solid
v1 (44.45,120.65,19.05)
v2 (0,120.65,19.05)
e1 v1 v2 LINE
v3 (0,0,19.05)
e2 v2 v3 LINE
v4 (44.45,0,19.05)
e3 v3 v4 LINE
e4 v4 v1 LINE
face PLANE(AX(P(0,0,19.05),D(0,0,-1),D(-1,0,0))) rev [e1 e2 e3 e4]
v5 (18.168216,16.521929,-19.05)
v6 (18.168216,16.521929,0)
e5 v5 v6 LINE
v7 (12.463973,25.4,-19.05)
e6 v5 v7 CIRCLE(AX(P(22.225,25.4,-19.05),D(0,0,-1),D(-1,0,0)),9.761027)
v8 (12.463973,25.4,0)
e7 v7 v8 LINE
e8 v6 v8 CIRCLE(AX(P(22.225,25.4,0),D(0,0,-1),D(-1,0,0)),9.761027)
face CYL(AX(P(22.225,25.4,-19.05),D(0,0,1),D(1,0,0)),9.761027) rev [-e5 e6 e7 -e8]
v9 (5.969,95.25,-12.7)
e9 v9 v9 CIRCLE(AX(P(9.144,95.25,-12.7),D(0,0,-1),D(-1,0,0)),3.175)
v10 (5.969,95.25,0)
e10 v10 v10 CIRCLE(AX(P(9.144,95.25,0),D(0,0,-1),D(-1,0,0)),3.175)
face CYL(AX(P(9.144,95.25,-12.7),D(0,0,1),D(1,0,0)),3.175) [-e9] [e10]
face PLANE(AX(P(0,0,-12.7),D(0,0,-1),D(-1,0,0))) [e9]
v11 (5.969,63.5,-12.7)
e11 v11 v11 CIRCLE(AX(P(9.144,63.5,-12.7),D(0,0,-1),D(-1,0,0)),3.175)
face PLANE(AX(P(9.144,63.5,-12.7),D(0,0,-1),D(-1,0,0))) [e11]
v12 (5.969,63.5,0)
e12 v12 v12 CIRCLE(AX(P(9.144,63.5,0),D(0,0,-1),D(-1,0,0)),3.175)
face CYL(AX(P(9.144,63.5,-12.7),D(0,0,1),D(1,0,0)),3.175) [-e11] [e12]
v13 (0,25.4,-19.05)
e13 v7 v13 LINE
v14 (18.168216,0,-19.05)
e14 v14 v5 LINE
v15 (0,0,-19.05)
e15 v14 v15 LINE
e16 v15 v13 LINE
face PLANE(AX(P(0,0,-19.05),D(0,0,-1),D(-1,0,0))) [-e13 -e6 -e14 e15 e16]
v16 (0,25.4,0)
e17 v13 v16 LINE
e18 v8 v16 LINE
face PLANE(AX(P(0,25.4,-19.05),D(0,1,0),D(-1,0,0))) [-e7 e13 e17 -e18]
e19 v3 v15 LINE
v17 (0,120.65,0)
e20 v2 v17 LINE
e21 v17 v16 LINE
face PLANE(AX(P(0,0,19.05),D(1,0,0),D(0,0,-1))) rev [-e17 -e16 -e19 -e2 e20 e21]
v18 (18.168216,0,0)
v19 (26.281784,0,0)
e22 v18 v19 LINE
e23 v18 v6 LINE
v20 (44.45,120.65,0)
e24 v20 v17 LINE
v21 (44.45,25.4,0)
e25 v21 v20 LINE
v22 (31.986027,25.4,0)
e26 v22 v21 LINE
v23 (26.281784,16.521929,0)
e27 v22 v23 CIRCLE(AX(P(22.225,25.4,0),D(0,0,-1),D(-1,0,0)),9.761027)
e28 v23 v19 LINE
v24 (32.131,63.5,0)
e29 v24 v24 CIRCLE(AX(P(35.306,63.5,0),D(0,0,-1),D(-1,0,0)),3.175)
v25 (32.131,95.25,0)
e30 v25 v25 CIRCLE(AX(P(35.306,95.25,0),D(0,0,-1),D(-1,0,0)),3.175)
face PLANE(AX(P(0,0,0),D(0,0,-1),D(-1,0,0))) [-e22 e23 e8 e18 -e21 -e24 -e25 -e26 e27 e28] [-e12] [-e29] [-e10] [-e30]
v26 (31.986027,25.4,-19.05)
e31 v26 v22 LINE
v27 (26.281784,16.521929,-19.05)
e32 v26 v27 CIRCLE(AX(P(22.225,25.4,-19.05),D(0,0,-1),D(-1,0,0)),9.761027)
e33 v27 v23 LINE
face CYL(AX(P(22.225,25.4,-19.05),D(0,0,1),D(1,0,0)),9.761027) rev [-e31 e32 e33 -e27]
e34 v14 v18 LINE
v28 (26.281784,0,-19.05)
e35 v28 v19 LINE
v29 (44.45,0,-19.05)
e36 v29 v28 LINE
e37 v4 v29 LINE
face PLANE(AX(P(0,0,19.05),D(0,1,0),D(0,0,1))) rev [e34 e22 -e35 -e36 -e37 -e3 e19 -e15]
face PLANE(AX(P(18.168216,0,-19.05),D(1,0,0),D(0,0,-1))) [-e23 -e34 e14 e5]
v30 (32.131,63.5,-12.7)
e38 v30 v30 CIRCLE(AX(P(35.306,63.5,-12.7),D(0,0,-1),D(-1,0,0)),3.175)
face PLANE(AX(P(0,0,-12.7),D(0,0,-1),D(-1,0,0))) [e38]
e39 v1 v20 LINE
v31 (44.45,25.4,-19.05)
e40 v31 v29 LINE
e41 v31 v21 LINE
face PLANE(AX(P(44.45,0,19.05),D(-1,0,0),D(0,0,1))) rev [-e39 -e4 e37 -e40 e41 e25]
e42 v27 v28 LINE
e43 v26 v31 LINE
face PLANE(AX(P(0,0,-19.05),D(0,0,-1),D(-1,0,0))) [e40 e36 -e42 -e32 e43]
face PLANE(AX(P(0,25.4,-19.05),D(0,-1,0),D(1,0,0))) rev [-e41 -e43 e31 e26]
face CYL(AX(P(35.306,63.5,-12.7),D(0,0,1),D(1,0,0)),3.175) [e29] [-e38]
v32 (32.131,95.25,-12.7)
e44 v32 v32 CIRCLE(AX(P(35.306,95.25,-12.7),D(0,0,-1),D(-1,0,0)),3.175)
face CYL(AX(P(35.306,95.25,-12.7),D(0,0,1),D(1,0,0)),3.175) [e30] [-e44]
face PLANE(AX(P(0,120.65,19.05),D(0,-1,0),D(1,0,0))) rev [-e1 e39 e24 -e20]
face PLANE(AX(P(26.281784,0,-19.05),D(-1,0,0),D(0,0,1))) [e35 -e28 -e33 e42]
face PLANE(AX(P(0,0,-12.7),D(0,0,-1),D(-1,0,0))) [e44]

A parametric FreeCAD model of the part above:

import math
import FreeCAD as App
import Part
import Sketcher
from FreeCAD import Vector
Q = App.Units.Quantity

doc = App.newDocument("Part")
params = doc.addObject("Spreadsheet::Sheet", "Params")
for row, (alias, value) in enumerate([
    ("sketch1_width", "1.75 in"),
    ("sketch1_height", "4.75 in"),
    ("pad1_length", "0.75 in"),
    ("sketch2_height", "1 in"),
    ("pad2_length", "0.75 in"),
    ("sketch3_diameter", "0.25 in"),
    ("pad3_length", "0.5 in"),
], start=1):
    params.set(f"A{row}", alias)
    params.set(f"B{row}", "=" + value)
    params.setAlias(f"B{row}", alias)

body = doc.addObject("PartDesign::Body", "Body")

# Sketch on XY plane
sketch1 = body.newObject("Sketcher::SketchObject", "Sketch")
sketch1.AttachmentSupport = (doc.getObject("XY_Plane"), [""])
sketch1.MapMode = "FlatFace"
sketch1.addGeometry(Part.LineSegment(Vector(0, 121, 0), Vector(0, 0, 0)), False)
sketch1.addGeometry(Part.LineSegment(Vector(0, 0, 0), Vector(44, 0, 0)), False)
sketch1.addGeometry(Part.LineSegment(Vector(44, 0, 0), Vector(44, 121, 0)), False)
sketch1.addGeometry(Part.LineSegment(Vector(44, 121, 0), Vector(0, 121, 0)), False)
sketch1.addConstraint(Sketcher.Constraint("Coincident", 0, 2, 1, 1))
sketch1.addConstraint(Sketcher.Constraint("Coincident", 1, 2, 2, 1))
sketch1.addConstraint(Sketcher.Constraint("Coincident", 2, 2, 3, 1))
sketch1.addConstraint(Sketcher.Constraint("Coincident", 3, 2, 0, 1))
sketch1.addConstraint(Sketcher.Constraint("Vertical", 0))
sketch1.addConstraint(Sketcher.Constraint("Horizontal", 1))
sketch1.addConstraint(Sketcher.Constraint("Vertical", 2))
sketch1.addConstraint(Sketcher.Constraint("Horizontal", 3))
sketch1.addConstraint(Sketcher.Constraint("Coincident", 0, 2, -1, 1))
sketch1.addConstraint(Sketcher.Constraint("DistanceX", 1, 1, 1, 2, Q("1.75 in")))
sketch1.addConstraint(Sketcher.Constraint("DistanceY", 0, 2, 0, 1, Q("4.75 in")))
sketch1.setExpression("Constraints[9]", "Params.sketch1_width")
sketch1.setExpression("Constraints[10]", "Params.sketch1_height")
pad1 = body.newObject("PartDesign::Pad", "Pad")
pad1.Profile = sketch1
pad1.setExpression("Length", "Params.pad1_length")

# Sketch on XY plane
sketch2 = body.newObject("Sketcher::SketchObject", "Sketch001")
sketch2.AttachmentSupport = (doc.getObject("XY_Plane"), [""])
sketch2.MapMode = "FlatFace"
sketch2.addGeometry(Part.ArcOfCircle(Part.Circle(Vector(22, 25, 0), Vector(0, 0, 1), 10), math.radians(-65), math.radians(0)), False)
sketch2.addGeometry(Part.LineSegment(Vector(32, 25, 0), Vector(44, 25, 0)), False)
sketch2.addGeometry(Part.LineSegment(Vector(44, 25, 0), Vector(44, 0, 0)), False)
sketch2.addGeometry(Part.LineSegment(Vector(44, 0, 0), Vector(26, 0, 0)), False)
sketch2.addGeometry(Part.LineSegment(Vector(26, 0, 0), Vector(26, 17, 0)), False)
sketch2.addGeometry(Part.LineSegment(Vector(0, 25, 0), Vector(12, 25, 0)), False)
sketch2.addGeometry(Part.ArcOfCircle(Part.Circle(Vector(22, 25, 0), Vector(0, 0, 1), 10), math.radians(180), math.radians(245)), False)
sketch2.addGeometry(Part.LineSegment(Vector(18, 17, 0), Vector(18, 0, 0)), False)
sketch2.addGeometry(Part.LineSegment(Vector(18, 0, 0), Vector(0, 0, 0)), False)
sketch2.addGeometry(Part.LineSegment(Vector(0, 0, 0), Vector(0, 25, 0)), False)
sketch2.addConstraint(Sketcher.Constraint("Coincident", 0, 2, 1, 1))
sketch2.addConstraint(Sketcher.Constraint("Coincident", 1, 2, 2, 1))
sketch2.addConstraint(Sketcher.Constraint("Coincident", 2, 2, 3, 1))
sketch2.addConstraint(Sketcher.Constraint("Coincident", 3, 2, 4, 1))
sketch2.addConstraint(Sketcher.Constraint("Coincident", 4, 2, 0, 1))
sketch2.addConstraint(Sketcher.Constraint("Coincident", 5, 2, 6, 1))
sketch2.addConstraint(Sketcher.Constraint("Coincident", 6, 2, 7, 1))
sketch2.addConstraint(Sketcher.Constraint("Coincident", 7, 2, 8, 1))
sketch2.addConstraint(Sketcher.Constraint("Coincident", 8, 2, 9, 1))
sketch2.addConstraint(Sketcher.Constraint("Coincident", 9, 2, 5, 1))
sketch2.addConstraint(Sketcher.Constraint("Horizontal", 1))
sketch2.addConstraint(Sketcher.Constraint("Vertical", 2))
sketch2.addConstraint(Sketcher.Constraint("Horizontal", 3))
sketch2.addConstraint(Sketcher.Constraint("Vertical", 4))
sketch2.addConstraint(Sketcher.Constraint("Horizontal", 5))
sketch2.addConstraint(Sketcher.Constraint("Vertical", 7))
sketch2.addConstraint(Sketcher.Constraint("Horizontal", 8))
sketch2.addConstraint(Sketcher.Constraint("Vertical", 9))
sketch2.addConstraint(Sketcher.Constraint("Coincident", 8, 2, -1, 1))
sketch2.addConstraint(Sketcher.Constraint("Coincident", 6, 3, 0, 3))
sketch2.addConstraint(Sketcher.Constraint("Equal", 0, 6))
sketch2.addConstraint(Sketcher.Constraint("PointOnObject", 2, 2, -1))
sketch2.addConstraint(Sketcher.Constraint("Horizontal", 6, 3, 0, 2))
sketch2.addConstraint(Sketcher.Constraint("Horizontal", 1, 2, 5, 2))
sketch2.addConstraint(Sketcher.Constraint("Horizontal", 4, 2, 6, 2))
sketch2.addConstraint(Sketcher.Constraint("Equal", 1, 5))
sketch2.addConstraint(Sketcher.Constraint("DistanceY", 2, 2, 2, 1, Q("1 in")))
sketch2.addConstraint(Sketcher.Constraint("DistanceX", -1, 1, 1, 2, Q("1.75 in")))
sketch2.addConstraint(Sketcher.Constraint("Radius", 0, Q("9.761027 mm")))
sketch2.addConstraint(Sketcher.Constraint("DistanceY", 4, 1, 4, 2, Q("16.521929 mm")))
sketch2.setExpression("Constraints[26]", "Params.sketch2_height")
pad2 = body.newObject("PartDesign::Pad", "Pad001")
pad2.Profile = sketch2
pad2.setExpression("Length", "Params.pad2_length")
pad2.Reversed = True

# Sketch on XY plane
sketch3 = body.newObject("Sketcher::SketchObject", "Sketch002")
sketch3.AttachmentSupport = (doc.getObject("XY_Plane"), [""])
sketch3.MapMode = "FlatFace"
sketch3.addGeometry(Part.Circle(Vector(35.3, 95.2, 0), Vector(0, 0, 1), 3.2), False)
sketch3.addGeometry(Part.Circle(Vector(35.3, 63.5, 0), Vector(0, 0, 1), 3.2), False)
sketch3.addGeometry(Part.Circle(Vector(9.1, 95.2, 0), Vector(0, 0, 1), 3.2), False)
sketch3.addGeometry(Part.Circle(Vector(9.1, 63.5, 0), Vector(0, 0, 1), 3.2), False)
sketch3.addConstraint(Sketcher.Constraint("Equal", 0, 1))
sketch3.addConstraint(Sketcher.Constraint("Equal", 1, 2))
sketch3.addConstraint(Sketcher.Constraint("Equal", 2, 3))
sketch3.addConstraint(Sketcher.Constraint("Horizontal", 0, 3, 2, 3))
sketch3.addConstraint(Sketcher.Constraint("Horizontal", 1, 3, 3, 3))
sketch3.addConstraint(Sketcher.Constraint("Vertical", 0, 3, 1, 3))
sketch3.addConstraint(Sketcher.Constraint("Vertical", 2, 3, 3, 3))
sketch3.addConstraint(Sketcher.Constraint("Diameter", 0, Q("0.25 in")))
sketch3.addConstraint(Sketcher.Constraint("DistanceY", -1, 1, 1, 3, Q("2.5 in")))
sketch3.addConstraint(Sketcher.Constraint("DistanceX", -1, 1, 0, 3, Q("1.39 in")))
sketch3.addConstraint(Sketcher.Constraint("DistanceY", -1, 1, 0, 3, Q("3.75 in")))
sketch3.addConstraint(Sketcher.Constraint("DistanceX", -1, 1, 2, 3, Q("0.36 in")))
sketch3.setExpression("Constraints[7]", "Params.sketch3_diameter")
pad3 = body.newObject("PartDesign::Pad", "Pad002")
pad3.Profile = sketch3
pad3.setExpression("Length", "Params.pad3_length")
pad3.Reversed = True

doc.recompute()
